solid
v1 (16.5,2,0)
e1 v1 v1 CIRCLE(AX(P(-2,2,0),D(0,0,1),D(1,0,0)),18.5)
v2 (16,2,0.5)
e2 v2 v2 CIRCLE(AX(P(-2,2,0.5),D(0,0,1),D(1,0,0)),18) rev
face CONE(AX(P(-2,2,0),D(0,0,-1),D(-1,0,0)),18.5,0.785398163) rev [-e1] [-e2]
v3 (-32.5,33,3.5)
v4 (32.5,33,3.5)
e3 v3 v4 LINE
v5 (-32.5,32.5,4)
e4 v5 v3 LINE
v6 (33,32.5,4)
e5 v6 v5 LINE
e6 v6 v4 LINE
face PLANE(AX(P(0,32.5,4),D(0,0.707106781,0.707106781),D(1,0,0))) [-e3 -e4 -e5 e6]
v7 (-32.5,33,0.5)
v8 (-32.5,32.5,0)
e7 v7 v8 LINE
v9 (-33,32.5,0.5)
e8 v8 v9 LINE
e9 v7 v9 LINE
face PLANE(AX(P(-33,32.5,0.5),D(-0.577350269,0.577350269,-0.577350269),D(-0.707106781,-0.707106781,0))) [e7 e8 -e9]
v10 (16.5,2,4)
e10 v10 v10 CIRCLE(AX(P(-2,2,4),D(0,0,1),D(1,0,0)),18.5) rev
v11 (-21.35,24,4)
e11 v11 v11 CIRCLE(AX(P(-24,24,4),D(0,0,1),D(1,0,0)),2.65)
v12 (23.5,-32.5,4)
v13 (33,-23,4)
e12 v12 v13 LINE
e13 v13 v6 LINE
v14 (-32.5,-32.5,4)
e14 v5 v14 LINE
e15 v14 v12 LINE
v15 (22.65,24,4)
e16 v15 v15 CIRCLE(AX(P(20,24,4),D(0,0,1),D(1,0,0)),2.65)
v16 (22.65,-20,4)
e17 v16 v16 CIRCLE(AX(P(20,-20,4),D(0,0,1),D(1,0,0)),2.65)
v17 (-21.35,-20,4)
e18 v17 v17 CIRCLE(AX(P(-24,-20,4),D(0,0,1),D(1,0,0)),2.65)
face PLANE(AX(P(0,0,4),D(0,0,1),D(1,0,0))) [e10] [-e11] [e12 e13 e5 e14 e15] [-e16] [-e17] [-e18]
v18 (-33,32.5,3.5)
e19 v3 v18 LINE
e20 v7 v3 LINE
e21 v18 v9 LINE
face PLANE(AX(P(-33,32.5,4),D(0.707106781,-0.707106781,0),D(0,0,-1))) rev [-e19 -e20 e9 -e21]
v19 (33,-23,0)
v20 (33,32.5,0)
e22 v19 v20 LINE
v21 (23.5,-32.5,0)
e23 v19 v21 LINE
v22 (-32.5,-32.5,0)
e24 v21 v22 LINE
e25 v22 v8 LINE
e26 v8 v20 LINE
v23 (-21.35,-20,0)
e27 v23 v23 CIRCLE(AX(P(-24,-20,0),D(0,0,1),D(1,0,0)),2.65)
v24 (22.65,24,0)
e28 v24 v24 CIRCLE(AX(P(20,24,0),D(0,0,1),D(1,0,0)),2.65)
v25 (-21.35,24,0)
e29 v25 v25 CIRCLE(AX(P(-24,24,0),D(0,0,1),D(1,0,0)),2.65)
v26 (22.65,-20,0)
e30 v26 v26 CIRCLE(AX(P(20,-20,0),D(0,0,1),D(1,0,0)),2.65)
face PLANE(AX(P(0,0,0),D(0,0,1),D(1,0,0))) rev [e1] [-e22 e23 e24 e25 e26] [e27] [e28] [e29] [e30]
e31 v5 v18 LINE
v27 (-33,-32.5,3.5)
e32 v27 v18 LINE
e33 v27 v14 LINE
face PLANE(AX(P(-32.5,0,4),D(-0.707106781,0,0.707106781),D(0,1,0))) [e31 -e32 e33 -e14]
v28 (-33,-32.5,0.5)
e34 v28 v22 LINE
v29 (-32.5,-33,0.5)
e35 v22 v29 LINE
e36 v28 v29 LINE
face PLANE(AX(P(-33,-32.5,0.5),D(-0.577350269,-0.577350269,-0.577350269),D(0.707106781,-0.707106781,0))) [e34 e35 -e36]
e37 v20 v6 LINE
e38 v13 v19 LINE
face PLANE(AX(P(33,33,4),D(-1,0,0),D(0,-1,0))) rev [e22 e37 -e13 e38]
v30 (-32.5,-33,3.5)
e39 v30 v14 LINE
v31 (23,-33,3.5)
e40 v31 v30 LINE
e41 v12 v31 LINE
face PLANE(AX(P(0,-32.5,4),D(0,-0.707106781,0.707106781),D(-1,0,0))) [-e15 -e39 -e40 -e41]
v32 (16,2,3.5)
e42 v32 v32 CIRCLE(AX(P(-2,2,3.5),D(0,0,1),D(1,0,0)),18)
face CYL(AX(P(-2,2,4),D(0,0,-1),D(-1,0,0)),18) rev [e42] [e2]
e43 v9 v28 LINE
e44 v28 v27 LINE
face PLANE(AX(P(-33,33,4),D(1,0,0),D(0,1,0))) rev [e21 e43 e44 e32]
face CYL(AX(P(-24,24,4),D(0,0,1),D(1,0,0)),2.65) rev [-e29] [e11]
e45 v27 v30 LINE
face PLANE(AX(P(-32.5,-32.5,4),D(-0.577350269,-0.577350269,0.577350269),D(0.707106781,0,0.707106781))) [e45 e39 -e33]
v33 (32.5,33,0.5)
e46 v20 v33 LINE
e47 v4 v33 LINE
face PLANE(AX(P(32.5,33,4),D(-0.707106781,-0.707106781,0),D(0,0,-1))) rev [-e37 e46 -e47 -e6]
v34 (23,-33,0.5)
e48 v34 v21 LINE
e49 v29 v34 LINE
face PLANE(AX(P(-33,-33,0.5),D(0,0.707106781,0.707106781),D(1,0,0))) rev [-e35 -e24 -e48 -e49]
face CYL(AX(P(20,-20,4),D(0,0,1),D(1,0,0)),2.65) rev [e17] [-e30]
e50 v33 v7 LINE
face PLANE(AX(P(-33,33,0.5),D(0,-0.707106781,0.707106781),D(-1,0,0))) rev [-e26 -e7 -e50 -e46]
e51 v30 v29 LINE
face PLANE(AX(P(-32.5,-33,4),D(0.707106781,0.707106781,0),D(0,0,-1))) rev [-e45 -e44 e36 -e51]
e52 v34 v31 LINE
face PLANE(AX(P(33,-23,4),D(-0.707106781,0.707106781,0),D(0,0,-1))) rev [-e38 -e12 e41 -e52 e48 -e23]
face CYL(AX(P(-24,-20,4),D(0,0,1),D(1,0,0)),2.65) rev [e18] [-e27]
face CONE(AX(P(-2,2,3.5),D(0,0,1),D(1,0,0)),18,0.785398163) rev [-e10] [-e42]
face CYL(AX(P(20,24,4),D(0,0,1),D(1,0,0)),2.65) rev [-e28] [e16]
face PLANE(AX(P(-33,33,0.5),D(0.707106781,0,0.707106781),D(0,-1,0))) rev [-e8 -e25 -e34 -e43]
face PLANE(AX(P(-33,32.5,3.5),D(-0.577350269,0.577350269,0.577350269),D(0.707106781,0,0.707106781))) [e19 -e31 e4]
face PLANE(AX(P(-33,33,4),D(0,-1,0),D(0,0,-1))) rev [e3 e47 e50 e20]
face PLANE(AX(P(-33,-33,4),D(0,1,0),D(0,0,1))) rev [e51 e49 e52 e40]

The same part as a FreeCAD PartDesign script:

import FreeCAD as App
import Part
import Sketcher


def edges_at(feature, points):
    """Names of the edges that pass closest to the given points."""
    edges = feature.Shape.Edges
    near = lambda p: min(range(len(edges)), key=lambda i: edges[i].distToShape(Part.Vertex(*p))[0])
    return sorted({f"Edge{near(p) + 1}" for p in points})

doc = App.newDocument("Part")
body = doc.addObject("PartDesign::Body", "Body")

# Sketch on XY plane
sketch1 = body.newObject("Sketcher::SketchObject", "Sketch")
sketch1.AttachmentSupport = (doc.getObject("XY_Plane"), [""])
sketch1.MapMode = "FlatFace"
sketch1.addGeometry(Part.LineSegment(App.Vector(-33, 33, 0), App.Vector(-33, -33, 0)), False)
sketch1.addGeometry(Part.LineSegment(App.Vector(-33, -33, 0), App.Vector(33, -33, 0)), False)
sketch1.addGeometry(Part.LineSegment(App.Vector(33, -33, 0), App.Vector(33, 33, 0)), False)
sketch1.addGeometry(Part.LineSegment(App.Vector(33, 33, 0), App.Vector(-33, 33, 0)), False)
sketch1.addGeometry(Part.Circle(App.Vector(-2, 2, 0), App.Vector(0, 0, 1), 18), False)
sketch1.addConstraint(Sketcher.Constraint("Coincident", 0, 2, 1, 1))
sketch1.addConstraint(Sketcher.Constraint("Coincident", 1, 2, 2, 1))
sketch1.addConstraint(Sketcher.Constraint("Coincident", 2, 2, 3, 1))
sketch1.addConstraint(Sketcher.Constraint("Coincident", 3, 2, 0, 1))
sketch1.addConstraint(Sketcher.Constraint("Vertical", 0))
sketch1.addConstraint(Sketcher.Constraint("Horizontal", 1))
sketch1.addConstraint(Sketcher.Constraint("Vertical", 2))
sketch1.addConstraint(Sketcher.Constraint("Horizontal", 3))
sketch1.addConstraint(Sketcher.Constraint("Symmetric", 0, 2, 2, 2, -1, 1))
sketch1.addConstraint(Sketcher.Constraint("Equal", 3, 0))
sketch1.addConstraint(Sketcher.Constraint("Diameter", 4, 36.0))
sketch1.addConstraint(Sketcher.Constraint("DistanceX", 1, 1, 1, 2, 66.0))
sketch1.addConstraint(Sketcher.Constraint("DistanceX", 4, 3, -1, 1, 2.0))
sketch1.addConstraint(Sketcher.Constraint("DistanceY", -1, 1, 4, 3, 2.0))
pad1 = body.newObject("PartDesign::Pad", "Pad")
pad1.Profile = sketch1
pad1.Length = 4
doc.recompute()

chamfer = body.newObject("PartDesign::Chamfer", "Chamfer")
chamfer.Base = (pad1, edges_at(pad1, [(33, -33, 2)]))
chamfer.Size = 10
doc.recompute()

chamfer2 = body.newObject("PartDesign::Chamfer", "Chamfer001")
chamfer2.Base = (chamfer, edges_at(chamfer, [
    (-33, 0, 4),
    (-20, 2, 0),
    (-20, 2, 4),
    (-5, -33, 4),
    (-5, -33, 0),
    (-33, 0, 0),
    (0, 33, 0),
    (0, 33, 4),
    (-33, -33, 2),
    (-33, 33, 2),
    (33, 33, 2),
]))
chamfer2.Size = 0.5

# Sketch on XY plane
sketch2 = body.newObject("Sketcher::SketchObject", "Sketch001")
sketch2.AttachmentSupport = (doc.getObject("XY_Plane"), [""])
sketch2.MapMode = "FlatFace"
sketch2.AttachmentOffset = App.Placement(App.Vector(0, 0, 4), App.Rotation())
sketch2.addGeometry(Part.Circle(App.Vector(-24, 24, 0), App.Vector(0, 0, 1), 2.65), False)
sketch2.addGeometry(Part.Circle(App.Vector(20, 24, 0), App.Vector(0, 0, 1), 2.65), False)
sketch2.addGeometry(Part.Circle(App.Vector(20, -20, 0), App.Vector(0, 0, 1), 2.65), False)
sketch2.addGeometry(Part.Circle(App.Vector(-24, -20, 0), App.Vector(0, 0, 1), 2.65), False)
sketch2.addGeometry(Part.Circle(App.Vector(-162.09862, 40.106244, 0), App.Vector(0, 0, 1), 2.65), False)
sketch2.addGeometry(Part.Circle(App.Vector(-166.138997, 40.106244, 0), App.Vector(0, 0, 1), 2.65), False)
sketch2.addConstraint(Sketcher.Constraint("Equal", 0, 1))
sketch2.addConstraint(Sketcher.Constraint("Equal", 1, 2))
sketch2.addConstraint(Sketcher.Constraint("Equal", 2, 3))
sketch2.addConstraint(Sketcher.Constraint("Equal", 3, 4))
sketch2.addConstraint(Sketcher.Constraint("Equal", 4, 5))
sketch2.addConstraint(Sketcher.Constraint("Horizontal", 0, 3, 1, 3))
sketch2.addConstraint(Sketcher.Constraint("Horizontal", 2, 3, 3, 3))
sketch2.addConstraint(Sketcher.Constraint("Horizontal", 4, 3, 5, 3))
sketch2.addConstraint(Sketcher.Constraint("Vertical", 1, 3, 2, 3))
sketch2.addConstraint(Sketcher.Constraint("Vertical", 0, 3, 3, 3))
sketch2.addConstraint(Sketcher.Constraint("Diameter", 0, 5.3))
sketch2.addConstraint(Sketcher.Constraint("DistanceX", 0, 3, -1, 1, 24.0))
sketch2.addConstraint(Sketcher.Constraint("DistanceY", -1, 1, 0, 3, 24.0))
sketch2.addConstraint(Sketcher.Constraint("DistanceX", -1, 1, 1, 3, 20.0))
sketch2.addConstraint(Sketcher.Constraint("DistanceY", 2, 3, -1, 1, 20.0))
sketch2.addConstraint(Sketcher.Constraint("DistanceX", 4, 3, -1, 1, 162.09862))
sketch2.addConstraint(Sketcher.Constraint("DistanceY", -1, 1, 4, 3, 40.106244))
sketch2.addConstraint(Sketcher.Constraint("DistanceX", 5, 3, -1, 1, 166.138997))
doc.recompute()
hole = body.newObject("PartDesign::Hole", "Hole")
hole.Profile = sketch2
hole.ThreadType = "None"
hole.Diameter = 5.3
hole.DepthType = "ThroughAll"

doc.recompute()
